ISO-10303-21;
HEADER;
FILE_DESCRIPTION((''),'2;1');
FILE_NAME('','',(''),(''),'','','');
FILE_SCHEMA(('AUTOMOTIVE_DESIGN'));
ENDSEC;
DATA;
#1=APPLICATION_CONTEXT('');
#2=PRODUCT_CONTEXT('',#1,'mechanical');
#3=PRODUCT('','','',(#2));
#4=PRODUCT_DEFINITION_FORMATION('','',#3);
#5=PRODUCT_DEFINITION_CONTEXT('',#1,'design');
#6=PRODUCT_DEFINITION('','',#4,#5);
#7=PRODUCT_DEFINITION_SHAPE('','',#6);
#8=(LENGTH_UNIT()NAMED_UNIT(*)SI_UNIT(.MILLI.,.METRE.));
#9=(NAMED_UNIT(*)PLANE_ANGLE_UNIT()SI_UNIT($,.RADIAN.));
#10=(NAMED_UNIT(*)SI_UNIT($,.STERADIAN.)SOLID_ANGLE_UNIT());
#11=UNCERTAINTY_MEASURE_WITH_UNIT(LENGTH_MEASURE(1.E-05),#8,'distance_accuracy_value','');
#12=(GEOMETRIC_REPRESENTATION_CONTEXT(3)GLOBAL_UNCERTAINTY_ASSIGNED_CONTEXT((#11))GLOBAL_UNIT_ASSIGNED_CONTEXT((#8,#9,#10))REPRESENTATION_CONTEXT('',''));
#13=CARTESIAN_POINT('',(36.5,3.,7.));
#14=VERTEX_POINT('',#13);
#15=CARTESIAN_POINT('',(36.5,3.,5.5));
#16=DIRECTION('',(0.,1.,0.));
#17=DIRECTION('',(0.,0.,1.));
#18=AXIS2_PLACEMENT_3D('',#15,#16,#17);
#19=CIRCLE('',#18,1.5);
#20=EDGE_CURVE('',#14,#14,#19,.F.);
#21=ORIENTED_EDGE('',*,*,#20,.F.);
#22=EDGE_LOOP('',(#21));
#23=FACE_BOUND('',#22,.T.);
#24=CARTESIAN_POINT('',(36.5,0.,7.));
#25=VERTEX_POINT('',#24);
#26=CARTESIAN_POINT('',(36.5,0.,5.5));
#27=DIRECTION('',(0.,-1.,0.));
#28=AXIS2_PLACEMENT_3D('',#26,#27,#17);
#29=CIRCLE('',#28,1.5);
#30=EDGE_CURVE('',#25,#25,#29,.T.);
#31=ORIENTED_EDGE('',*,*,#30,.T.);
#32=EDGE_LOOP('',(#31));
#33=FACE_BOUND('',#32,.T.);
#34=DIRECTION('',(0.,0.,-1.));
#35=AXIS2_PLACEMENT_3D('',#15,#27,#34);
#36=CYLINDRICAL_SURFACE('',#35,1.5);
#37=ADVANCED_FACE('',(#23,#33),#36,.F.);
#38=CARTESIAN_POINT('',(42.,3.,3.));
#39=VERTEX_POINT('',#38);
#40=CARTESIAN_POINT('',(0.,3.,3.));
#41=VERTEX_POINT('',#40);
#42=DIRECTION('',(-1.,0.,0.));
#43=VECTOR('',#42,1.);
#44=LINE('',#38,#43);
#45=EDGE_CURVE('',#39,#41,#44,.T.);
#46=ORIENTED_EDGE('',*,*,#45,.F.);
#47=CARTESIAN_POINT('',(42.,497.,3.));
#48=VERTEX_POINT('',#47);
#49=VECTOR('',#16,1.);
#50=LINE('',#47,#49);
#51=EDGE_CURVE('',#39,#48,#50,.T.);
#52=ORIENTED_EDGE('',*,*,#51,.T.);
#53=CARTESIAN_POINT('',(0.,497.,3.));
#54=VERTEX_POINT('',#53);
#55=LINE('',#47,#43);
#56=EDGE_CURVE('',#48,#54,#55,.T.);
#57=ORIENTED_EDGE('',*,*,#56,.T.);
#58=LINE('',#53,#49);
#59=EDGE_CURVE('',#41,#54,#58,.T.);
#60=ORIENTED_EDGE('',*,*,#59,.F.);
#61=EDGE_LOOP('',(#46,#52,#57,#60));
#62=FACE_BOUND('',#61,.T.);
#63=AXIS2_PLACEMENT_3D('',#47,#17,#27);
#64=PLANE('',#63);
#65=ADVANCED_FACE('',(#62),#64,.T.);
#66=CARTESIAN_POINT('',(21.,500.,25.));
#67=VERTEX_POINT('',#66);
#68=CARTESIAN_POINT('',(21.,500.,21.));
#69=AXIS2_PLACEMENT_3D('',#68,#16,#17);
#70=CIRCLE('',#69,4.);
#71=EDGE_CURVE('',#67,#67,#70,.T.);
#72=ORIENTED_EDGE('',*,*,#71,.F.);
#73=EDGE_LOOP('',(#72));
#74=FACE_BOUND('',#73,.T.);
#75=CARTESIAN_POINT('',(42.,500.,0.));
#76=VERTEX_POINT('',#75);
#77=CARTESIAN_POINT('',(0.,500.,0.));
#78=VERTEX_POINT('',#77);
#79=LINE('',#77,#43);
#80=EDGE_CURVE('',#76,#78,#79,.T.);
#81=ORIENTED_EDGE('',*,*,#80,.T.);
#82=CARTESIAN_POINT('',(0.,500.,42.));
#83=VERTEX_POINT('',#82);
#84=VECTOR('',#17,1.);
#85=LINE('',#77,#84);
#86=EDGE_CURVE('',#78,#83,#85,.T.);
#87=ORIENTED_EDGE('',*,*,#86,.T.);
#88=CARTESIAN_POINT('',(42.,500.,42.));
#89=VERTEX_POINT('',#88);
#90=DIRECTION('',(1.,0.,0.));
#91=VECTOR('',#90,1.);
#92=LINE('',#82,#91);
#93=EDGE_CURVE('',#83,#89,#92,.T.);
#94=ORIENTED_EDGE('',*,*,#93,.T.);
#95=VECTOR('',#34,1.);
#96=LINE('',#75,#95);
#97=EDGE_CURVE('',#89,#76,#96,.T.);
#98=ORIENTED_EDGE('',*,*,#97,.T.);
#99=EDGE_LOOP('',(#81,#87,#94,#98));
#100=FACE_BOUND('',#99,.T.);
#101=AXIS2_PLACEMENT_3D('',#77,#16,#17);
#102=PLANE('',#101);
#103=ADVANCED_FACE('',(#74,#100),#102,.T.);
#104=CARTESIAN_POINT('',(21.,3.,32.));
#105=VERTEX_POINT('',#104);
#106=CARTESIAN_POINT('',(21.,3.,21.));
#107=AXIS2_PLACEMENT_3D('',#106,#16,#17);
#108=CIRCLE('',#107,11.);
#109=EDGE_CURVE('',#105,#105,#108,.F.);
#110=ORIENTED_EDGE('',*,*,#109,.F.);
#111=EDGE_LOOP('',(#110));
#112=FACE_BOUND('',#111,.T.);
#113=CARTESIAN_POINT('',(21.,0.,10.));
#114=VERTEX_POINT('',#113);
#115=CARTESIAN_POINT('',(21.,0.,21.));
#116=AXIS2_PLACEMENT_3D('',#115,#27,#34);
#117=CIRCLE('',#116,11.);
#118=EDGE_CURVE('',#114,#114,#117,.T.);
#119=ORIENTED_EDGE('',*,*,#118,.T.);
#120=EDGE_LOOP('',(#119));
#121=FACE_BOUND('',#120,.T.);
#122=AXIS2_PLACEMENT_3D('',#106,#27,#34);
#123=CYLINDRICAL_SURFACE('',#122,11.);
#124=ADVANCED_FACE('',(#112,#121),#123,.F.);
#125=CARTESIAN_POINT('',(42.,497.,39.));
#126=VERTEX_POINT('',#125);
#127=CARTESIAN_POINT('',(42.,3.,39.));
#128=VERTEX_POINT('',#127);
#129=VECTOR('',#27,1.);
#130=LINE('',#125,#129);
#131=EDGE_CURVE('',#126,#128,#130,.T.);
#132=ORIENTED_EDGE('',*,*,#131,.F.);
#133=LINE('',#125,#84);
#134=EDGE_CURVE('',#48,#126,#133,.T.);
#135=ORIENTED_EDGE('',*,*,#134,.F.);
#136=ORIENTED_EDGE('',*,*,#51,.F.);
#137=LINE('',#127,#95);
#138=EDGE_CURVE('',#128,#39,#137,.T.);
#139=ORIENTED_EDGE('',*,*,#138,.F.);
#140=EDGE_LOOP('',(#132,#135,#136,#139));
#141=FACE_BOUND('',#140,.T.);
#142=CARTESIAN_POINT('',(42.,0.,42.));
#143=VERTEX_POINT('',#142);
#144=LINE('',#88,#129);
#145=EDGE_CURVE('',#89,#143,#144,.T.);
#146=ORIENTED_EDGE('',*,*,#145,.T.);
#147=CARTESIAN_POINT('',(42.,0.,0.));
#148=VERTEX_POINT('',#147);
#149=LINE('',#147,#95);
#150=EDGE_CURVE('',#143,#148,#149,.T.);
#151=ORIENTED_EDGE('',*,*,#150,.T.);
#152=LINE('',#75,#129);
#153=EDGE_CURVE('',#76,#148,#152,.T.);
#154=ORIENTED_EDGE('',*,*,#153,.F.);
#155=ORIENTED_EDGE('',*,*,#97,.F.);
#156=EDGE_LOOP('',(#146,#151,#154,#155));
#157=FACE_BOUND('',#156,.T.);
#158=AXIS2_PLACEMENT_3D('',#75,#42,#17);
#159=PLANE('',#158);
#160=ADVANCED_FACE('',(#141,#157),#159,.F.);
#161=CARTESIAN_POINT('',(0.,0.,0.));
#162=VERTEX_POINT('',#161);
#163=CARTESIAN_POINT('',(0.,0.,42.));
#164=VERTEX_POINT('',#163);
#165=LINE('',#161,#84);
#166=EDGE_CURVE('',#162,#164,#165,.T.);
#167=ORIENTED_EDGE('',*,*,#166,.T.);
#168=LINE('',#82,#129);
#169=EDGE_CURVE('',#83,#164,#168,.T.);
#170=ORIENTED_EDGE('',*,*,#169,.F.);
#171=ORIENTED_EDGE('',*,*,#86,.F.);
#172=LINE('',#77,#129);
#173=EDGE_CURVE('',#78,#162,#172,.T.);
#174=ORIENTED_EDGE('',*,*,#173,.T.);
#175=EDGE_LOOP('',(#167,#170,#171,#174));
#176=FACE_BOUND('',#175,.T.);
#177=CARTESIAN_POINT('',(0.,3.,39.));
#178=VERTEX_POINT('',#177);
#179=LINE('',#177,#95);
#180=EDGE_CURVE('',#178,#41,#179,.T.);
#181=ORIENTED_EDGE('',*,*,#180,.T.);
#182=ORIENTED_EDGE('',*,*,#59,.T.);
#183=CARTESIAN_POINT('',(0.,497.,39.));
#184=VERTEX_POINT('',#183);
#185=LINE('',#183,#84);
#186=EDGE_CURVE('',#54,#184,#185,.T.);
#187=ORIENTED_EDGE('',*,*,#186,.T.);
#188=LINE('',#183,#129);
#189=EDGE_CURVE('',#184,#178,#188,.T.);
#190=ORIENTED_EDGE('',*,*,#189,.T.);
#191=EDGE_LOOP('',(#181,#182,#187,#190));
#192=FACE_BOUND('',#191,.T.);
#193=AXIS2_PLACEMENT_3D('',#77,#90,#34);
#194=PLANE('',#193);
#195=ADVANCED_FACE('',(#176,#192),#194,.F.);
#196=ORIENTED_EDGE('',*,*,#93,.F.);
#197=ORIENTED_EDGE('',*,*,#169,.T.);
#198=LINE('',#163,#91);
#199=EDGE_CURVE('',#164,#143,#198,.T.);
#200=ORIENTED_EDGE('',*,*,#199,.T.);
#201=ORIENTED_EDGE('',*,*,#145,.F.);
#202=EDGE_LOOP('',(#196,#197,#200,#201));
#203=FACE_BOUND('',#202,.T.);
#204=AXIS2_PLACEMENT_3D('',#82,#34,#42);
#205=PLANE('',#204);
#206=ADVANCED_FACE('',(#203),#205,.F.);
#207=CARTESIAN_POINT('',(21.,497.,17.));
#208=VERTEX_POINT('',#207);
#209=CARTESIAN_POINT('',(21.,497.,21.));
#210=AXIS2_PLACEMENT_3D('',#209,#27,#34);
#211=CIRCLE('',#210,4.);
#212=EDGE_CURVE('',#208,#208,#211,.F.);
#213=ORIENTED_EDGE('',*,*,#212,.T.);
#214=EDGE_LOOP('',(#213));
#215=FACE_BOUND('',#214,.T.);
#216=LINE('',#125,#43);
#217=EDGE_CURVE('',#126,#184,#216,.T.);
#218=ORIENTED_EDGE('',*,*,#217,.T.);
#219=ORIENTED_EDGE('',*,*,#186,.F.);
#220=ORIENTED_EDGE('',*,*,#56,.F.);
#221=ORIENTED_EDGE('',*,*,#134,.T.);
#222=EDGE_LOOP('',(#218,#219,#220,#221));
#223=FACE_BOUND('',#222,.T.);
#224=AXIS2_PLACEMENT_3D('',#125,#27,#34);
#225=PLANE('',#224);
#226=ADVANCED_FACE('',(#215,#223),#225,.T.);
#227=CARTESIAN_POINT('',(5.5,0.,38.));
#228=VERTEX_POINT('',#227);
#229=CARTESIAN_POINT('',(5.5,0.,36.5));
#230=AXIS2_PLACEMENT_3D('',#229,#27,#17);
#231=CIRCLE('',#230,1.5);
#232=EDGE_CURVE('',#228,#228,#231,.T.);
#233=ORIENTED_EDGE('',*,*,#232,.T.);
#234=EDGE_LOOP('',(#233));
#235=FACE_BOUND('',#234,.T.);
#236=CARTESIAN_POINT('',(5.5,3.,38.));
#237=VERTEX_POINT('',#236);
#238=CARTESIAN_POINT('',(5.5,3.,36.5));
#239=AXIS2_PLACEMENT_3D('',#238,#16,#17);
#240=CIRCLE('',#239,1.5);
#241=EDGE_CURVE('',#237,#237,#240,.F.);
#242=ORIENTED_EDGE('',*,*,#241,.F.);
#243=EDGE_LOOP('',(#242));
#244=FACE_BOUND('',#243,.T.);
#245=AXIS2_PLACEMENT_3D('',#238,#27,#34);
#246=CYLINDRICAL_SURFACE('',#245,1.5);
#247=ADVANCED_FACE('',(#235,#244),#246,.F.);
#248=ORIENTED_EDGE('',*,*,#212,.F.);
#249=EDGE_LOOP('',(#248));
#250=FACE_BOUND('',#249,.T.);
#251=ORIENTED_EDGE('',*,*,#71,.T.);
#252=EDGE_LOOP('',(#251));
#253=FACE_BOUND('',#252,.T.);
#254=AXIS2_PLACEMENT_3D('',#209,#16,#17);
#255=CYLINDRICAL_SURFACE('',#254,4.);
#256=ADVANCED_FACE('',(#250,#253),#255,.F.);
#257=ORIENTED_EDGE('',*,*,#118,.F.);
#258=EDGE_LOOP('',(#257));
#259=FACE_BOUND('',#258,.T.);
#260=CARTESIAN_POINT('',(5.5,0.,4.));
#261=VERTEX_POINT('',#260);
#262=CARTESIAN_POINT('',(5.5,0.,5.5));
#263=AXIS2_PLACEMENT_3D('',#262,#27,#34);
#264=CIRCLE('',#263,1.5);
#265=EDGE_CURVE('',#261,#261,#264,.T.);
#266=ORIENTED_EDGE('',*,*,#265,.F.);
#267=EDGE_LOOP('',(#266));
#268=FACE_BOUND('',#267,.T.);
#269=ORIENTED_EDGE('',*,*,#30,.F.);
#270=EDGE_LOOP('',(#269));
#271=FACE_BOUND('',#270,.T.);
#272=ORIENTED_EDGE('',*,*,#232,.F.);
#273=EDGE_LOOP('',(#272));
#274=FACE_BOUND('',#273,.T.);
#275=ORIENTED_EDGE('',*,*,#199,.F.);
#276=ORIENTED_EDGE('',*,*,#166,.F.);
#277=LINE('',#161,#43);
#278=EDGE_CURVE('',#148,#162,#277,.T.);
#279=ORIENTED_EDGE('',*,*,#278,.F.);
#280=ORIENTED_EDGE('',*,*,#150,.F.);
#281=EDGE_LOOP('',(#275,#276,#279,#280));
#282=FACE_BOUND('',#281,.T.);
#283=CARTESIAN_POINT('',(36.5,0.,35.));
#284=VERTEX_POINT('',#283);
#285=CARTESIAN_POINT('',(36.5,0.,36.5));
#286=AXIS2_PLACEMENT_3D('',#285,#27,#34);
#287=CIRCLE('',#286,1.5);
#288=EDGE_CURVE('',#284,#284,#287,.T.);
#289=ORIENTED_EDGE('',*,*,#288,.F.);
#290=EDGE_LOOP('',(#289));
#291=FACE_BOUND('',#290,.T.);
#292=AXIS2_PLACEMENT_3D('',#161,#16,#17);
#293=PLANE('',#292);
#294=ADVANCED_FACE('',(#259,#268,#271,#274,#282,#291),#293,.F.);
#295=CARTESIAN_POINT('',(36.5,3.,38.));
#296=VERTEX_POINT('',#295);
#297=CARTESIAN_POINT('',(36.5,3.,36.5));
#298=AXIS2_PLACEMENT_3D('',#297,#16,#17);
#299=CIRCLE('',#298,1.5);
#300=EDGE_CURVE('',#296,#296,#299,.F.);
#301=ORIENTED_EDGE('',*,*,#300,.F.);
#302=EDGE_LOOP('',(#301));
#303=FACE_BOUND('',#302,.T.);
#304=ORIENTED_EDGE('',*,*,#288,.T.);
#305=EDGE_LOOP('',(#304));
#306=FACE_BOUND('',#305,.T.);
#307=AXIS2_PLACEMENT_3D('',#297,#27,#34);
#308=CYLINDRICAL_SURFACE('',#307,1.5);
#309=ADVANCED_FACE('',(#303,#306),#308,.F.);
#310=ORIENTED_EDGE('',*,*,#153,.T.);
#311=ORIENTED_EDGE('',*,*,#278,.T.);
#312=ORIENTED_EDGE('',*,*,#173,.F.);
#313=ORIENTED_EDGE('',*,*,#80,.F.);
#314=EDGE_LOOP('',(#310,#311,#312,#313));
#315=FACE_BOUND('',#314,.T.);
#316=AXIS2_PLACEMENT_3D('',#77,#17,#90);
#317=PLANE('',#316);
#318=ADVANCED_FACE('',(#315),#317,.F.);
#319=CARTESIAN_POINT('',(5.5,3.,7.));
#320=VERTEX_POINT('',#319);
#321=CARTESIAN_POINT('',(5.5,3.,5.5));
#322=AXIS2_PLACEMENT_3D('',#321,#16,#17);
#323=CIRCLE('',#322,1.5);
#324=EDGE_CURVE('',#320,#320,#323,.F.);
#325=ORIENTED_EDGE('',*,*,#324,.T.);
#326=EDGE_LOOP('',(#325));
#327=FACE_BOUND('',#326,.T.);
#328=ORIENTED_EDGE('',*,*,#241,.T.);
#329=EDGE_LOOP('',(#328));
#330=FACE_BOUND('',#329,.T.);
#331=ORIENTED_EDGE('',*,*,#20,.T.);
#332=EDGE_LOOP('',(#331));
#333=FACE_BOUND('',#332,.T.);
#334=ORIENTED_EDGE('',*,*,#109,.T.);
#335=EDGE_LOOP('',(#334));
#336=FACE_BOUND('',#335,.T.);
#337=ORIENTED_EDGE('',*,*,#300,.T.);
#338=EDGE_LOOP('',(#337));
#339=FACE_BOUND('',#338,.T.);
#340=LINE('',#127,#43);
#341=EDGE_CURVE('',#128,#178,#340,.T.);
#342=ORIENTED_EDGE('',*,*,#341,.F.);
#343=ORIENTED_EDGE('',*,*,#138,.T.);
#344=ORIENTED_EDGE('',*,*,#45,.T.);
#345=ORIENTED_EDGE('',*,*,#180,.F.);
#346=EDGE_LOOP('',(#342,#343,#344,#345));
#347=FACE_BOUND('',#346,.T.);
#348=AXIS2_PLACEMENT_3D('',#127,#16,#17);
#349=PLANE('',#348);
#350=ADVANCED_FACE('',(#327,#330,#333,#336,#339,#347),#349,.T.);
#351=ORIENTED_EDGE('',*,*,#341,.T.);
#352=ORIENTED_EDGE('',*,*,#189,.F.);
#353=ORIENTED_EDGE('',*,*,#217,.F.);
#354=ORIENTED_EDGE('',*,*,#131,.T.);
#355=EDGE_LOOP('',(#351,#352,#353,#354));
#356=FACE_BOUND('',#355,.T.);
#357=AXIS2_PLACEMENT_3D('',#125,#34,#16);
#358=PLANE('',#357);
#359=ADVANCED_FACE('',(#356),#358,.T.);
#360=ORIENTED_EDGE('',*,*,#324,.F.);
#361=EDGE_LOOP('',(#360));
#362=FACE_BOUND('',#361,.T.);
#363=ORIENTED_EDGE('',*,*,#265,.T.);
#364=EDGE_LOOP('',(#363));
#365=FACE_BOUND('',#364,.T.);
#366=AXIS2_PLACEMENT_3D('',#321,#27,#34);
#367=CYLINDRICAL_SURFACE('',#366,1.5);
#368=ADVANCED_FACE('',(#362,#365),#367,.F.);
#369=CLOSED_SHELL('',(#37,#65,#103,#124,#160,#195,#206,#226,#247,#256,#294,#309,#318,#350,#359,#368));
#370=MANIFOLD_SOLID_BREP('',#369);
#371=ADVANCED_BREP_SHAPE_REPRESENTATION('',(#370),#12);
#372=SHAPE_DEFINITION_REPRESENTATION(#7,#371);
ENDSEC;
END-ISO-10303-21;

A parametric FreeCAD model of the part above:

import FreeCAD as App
import Part
import Sketcher

V = App.Vector
Q = App.Units.Quantity

doc = App.newDocument("Part")
body = doc.addObject("PartDesign::Body", "Body")

sketch1 = body.newObject("Sketcher::SketchObject", "Sketch")
sketch1.AttachmentSupport = (doc.getObject("XZ_Plane"), [""])
sketch1.MapMode = "FlatFace"
sketch1.addGeometry(Part.LineSegment(V(0, 0, 0), V(0, 42, 0)), False)
sketch1.addGeometry(Part.LineSegment(V(0, 42, 0), V(42, 42, 0)), False)
sketch1.addGeometry(Part.LineSegment(V(42, 42, 0), V(42, 0, 0)), False)
sketch1.addGeometry(Part.LineSegment(V(42, 0, 0), V(0, 0, 0)), False)
sketch1.addConstraint(Sketcher.Constraint("Coincident", 0, 2, 1, 1))
sketch1.addConstraint(Sketcher.Constraint("Coincident", 1, 2, 2, 1))
sketch1.addConstraint(Sketcher.Constraint("Coincident", 2, 2, 3, 1))
sketch1.addConstraint(Sketcher.Constraint("Coincident", 3, 2, 0, 1))
sketch1.addConstraint(Sketcher.Constraint("Vertical", 0))
sketch1.addConstraint(Sketcher.Constraint("Horizontal", 1))
sketch1.addConstraint(Sketcher.Constraint("Vertical", 2))
sketch1.addConstraint(Sketcher.Constraint("Horizontal", 3))
sketch1.addConstraint(Sketcher.Constraint("Coincident", 3, 2, -1, 1))
sketch1.addConstraint(Sketcher.Constraint("Equal", 3, 0))
sketch1.addConstraint(Sketcher.Constraint("DistanceX", 1, 1, 1, 2, Q("42 mm")))
pad1 = body.newObject("PartDesign::Pad", "Pad")
pad1.Profile = sketch1
pad1.Length = 500
pad1.Reversed = True

sketch2 = body.newObject("Sketcher::SketchObject", "Sketch001")
sketch2.AttachmentSupport = (doc.getObject("XZ_Plane"), [""])
sketch2.MapMode = "FlatFace"
sketch2.addGeometry(Part.Circle(V(21, 21, 0), V(0, 0, 1), 11), False)
sketch2.addGeometry(Part.Circle(V(5.5, 5.5, 0), V(0, 0, 1), 1.5), False)
sketch2.addGeometry(Part.Circle(V(5.5, 36.5, 0), V(0, 0, 1), 1.5), False)
sketch2.addGeometry(Part.Circle(V(36.5, 5.5, 0), V(0, 0, 1), 1.5), False)
sketch2.addGeometry(Part.Circle(V(36.5, 36.5, 0), V(0, 0, 1), 1.5), False)
sketch2.addConstraint(Sketcher.Constraint("Equal", 1, 2))
sketch2.addConstraint(Sketcher.Constraint("Equal", 2, 3))
sketch2.addConstraint(Sketcher.Constraint("Equal", 3, 4))
sketch2.addConstraint(Sketcher.Constraint("Horizontal", 1, 3, 3, 3))
sketch2.addConstraint(Sketcher.Constraint("Horizontal", 2, 3, 4, 3))
sketch2.addConstraint(Sketcher.Constraint("Vertical", 1, 3, 2, 3))
sketch2.addConstraint(Sketcher.Constraint("Vertical", 3, 3, 4, 3))
sketch2.addConstraint(Sketcher.Constraint("Diameter", 0, Q("22 mm")))
sketch2.addConstraint(Sketcher.Constraint("Diameter", 1, Q("3 mm")))
sketch2.addConstraint(Sketcher.Constraint("DistanceX", -1, 1, 0, 3, Q("21 mm")))
sketch2.addConstraint(Sketcher.Constraint("DistanceY", -1, 1, 0, 3, Q("21 mm")))
sketch2.addConstraint(Sketcher.Constraint("DistanceY", 1, 3, 2, 3, Q("31 mm")))
sketch2.addConstraint(Sketcher.Constraint("DistanceX", 1, 3, 3, 3, Q("31 mm")))
sketch2.addConstraint(Sketcher.Constraint("DistanceX", -1, 1, 1, 3, Q("5.5 mm")))
sketch2.addConstraint(Sketcher.Constraint("DistanceY", -1, 1, 1, 3, Q("5.5 mm")))
pocket1 = body.newObject("PartDesign::Pocket", "Pocket")
pocket1.Profile = sketch2
pocket1.Length = 3

sketch3 = body.newObject("Sketcher::SketchObject", "Sketch002")
sketch3.AttachmentSupport = (doc.getObject("XZ_Plane"), [""])
sketch3.MapMode = "FlatFace"
sketch3.AttachmentOffset = App.Placement(V(0, 0, -500), App.Rotation())
sketch3.addGeometry(Part.Circle(V(21, 21, 0), V(0, 0, 1), 4), False)
sketch3.addConstraint(Sketcher.Constraint("Diameter", 0, Q("8 mm")))
sketch3.addConstraint(Sketcher.Constraint("DistanceX", -1, 1, 0, 3, Q("21 mm")))
sketch3.addConstraint(Sketcher.Constraint("DistanceY", -1, 1, 0, 3, Q("21 mm")))
pocket2 = body.newObject("PartDesign::Pocket", "Pocket001")
pocket2.Profile = sketch3
pocket2.Length = 3
pocket2.Reversed = True

sketch4 = body.newObject("Sketcher::SketchObject", "Sketch003")
sketch4.AttachmentSupport = (doc.getObject("YZ_Plane"), [""])
sketch4.MapMode = "FlatFace"
sketch4.addGeometry(Part.LineSegment(V(497, 39, 0), V(3, 39, 0)), False)
sketch4.addGeometry(Part.LineSegment(V(3, 39, 0), V(3, 3, 0)), False)
sketch4.addGeometry(Part.LineSegment(V(3, 3, 0), V(497, 3, 0)), False)
sketch4.addGeometry(Part.LineSegment(V(497, 3, 0), V(497, 39, 0)), False)
sketch4.addConstraint(Sketcher.Constraint("Coincident", 0, 2, 1, 1))
sketch4.addConstraint(Sketcher.Constraint("Coincident", 1, 2, 2, 1))
sketch4.addConstraint(Sketcher.Constraint("Coincident", 2, 2, 3, 1))
sketch4.addConstraint(Sketcher.Constraint("Coincident", 3, 2, 0, 1))
sketch4.addConstraint(Sketcher.Constraint("Horizontal", 0))
sketch4.addConstraint(Sketcher.Constraint("Vertical", 1))
sketch4.addConstraint(Sketcher.Constraint("Horizontal", 2))
sketch4.addConstraint(Sketcher.Constraint("Vertical", 3))
sketch4.addConstraint(Sketcher.Constraint("DistanceX", 0, 2, 0, 1, Q("494 mm")))
sketch4.addConstraint(Sketcher.Constraint("DistanceY", 1, 2, 1, 1, Q("36 mm")))
sketch4.addConstraint(Sketcher.Constraint("DistanceX", -1, 1, 0, 2, Q("3 mm")))
sketch4.addConstraint(Sketcher.Constraint("DistanceY", -1, 1, 0, 2, Q("39 mm")))
pocket3 = body.newObject("PartDesign::Pocket", "Pocket002")
pocket3.Profile = sketch4
pocket3.Type = "ThroughAll"
pocket3.Reversed = True

doc.recompute()
